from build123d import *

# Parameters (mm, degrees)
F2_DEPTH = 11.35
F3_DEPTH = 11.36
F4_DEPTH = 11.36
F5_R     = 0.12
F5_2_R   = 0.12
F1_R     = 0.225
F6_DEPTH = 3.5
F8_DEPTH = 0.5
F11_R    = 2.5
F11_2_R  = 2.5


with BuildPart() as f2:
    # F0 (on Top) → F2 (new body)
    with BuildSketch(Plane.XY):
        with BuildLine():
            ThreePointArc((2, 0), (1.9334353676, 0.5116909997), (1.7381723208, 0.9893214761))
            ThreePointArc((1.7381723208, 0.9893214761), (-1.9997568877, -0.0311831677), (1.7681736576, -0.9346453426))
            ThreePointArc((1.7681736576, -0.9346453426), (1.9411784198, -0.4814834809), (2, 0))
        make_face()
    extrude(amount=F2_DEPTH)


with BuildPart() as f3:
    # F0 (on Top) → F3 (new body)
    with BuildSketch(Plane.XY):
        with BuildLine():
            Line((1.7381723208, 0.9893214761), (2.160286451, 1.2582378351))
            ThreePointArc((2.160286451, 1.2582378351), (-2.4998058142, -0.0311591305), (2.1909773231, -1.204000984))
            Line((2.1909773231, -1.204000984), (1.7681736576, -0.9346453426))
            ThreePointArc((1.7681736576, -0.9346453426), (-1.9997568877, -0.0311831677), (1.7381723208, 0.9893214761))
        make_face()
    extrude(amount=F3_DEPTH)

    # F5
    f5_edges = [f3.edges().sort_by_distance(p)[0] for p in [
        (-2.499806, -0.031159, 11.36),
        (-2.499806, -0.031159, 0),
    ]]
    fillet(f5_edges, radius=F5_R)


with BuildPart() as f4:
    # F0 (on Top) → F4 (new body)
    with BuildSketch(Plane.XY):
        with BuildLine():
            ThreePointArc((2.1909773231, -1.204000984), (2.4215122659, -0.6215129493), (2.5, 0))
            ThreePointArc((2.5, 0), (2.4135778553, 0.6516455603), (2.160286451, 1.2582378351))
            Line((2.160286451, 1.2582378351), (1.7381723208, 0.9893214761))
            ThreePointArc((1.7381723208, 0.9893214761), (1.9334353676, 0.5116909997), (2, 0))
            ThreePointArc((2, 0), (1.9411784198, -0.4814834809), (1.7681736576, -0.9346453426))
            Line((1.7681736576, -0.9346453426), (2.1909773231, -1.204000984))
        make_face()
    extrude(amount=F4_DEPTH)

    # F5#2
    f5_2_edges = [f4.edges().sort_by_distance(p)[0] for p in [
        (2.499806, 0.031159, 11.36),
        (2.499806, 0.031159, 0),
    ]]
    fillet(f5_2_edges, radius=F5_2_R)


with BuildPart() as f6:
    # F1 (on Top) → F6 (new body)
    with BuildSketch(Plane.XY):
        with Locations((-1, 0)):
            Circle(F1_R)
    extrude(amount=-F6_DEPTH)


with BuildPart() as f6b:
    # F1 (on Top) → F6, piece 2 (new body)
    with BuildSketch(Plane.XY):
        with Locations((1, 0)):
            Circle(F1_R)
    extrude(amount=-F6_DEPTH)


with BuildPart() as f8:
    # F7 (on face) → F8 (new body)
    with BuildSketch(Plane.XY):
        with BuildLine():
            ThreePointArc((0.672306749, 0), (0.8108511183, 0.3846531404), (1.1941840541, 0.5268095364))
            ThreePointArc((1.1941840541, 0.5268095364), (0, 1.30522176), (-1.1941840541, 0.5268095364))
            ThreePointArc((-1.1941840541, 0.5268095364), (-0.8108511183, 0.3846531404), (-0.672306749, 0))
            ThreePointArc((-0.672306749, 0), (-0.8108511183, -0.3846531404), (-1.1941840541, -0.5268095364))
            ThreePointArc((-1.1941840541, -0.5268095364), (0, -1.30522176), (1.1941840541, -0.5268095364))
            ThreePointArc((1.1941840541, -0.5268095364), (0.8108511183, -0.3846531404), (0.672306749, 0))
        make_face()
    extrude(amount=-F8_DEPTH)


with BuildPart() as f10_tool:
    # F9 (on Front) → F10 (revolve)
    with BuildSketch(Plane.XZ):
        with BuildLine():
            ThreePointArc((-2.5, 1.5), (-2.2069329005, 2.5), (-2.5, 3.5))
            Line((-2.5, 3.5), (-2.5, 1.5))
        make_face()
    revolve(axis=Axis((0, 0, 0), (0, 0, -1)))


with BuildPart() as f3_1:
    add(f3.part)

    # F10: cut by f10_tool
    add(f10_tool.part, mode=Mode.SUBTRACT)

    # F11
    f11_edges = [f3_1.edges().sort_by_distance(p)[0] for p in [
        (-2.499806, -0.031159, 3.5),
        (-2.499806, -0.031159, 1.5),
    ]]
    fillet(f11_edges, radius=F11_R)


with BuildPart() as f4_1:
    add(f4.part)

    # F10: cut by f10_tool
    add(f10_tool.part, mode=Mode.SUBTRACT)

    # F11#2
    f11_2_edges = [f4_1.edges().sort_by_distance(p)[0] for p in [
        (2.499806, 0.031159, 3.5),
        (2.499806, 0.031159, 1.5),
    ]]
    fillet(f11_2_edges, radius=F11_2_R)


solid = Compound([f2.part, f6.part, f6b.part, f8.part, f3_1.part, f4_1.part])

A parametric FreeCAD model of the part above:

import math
import FreeCAD as App
import Part
import Sketcher
from FreeCAD import Vector
Q = App.Units.Quantity


def edges_at(feature, points):
    """Names of the edges that pass closest to the given points."""
    edges = feature.Shape.Edges
    near = lambda p: min(range(len(edges)), key=lambda i: edges[i].distToShape(Part.Vertex(*p))[0])
    return sorted({f"Edge{near(p) + 1}" for p in points})

doc = App.newDocument("Part")
body = doc.addObject("PartDesign::Body", "Body")

sketch1 = body.newObject("Sketcher::SketchObject", "Sketch")
sketch1.AttachmentSupport = (doc.getObject("XY_Plane"), [""])
sketch1.MapMode = "FlatFace"
sketch1.addGeometry(Part.ArcOfCircle(Part.Circle(Vector(0, 0, 0), Vector(0, 0, 1), 2), math.radians(0), math.radians(30)), False)
sketch1.addGeometry(Part.ArcOfCircle(Part.Circle(Vector(0, 0, 0), Vector(0, 0, 1), 2), math.radians(30), math.radians(332)), False)
sketch1.addGeometry(Part.ArcOfCircle(Part.Circle(Vector(0, 0, 0), Vector(0, 0, 1), 2), math.radians(-28), math.radians(0)), False)
sketch1.addConstraint(Sketcher.Constraint("Tangent", 0, 2, 1, 1))
sketch1.addConstraint(Sketcher.Constraint("Tangent", 1, 2, 2, 1))
sketch1.addConstraint(Sketcher.Constraint("Tangent", 2, 2, 0, 1))
sketch1.addConstraint(Sketcher.Constraint("Coincident", 0, 3, -1, 1))
sketch1.addConstraint(Sketcher.Constraint("PointOnObject", 2, 2, -1))
sketch1.addConstraint(Sketcher.Constraint("Radius", 0, Q("2 mm")))
sketch1.addConstraint(Sketcher.Constraint("DistanceX", 0, 2, 1, 2, Q("0.030001 mm")))
sketch1.addConstraint(Sketcher.Constraint("DistanceY", -1, 1, 0, 2, Q("0.989321 mm")))
pad1 = body.newObject("PartDesign::Pad", "Pad")
pad1.Profile = sketch1
pad1.Length = 11.35
body2 = doc.addObject("PartDesign::Body", "Body001")

sketch2 = body2.newObject("Sketcher::SketchObject", "Sketch001")
sketch2.AttachmentSupport = (doc.getObject("XY_Plane001"), [""])
sketch2.MapMode = "FlatFace"
sketch2.addGeometry(Part.LineSegment(Vector(1.7, 1, 0), Vector(2.2, 1.3, 0)), False)
sketch2.addGeometry(Part.ArcOfCircle(Part.Circle(Vector(0, 0, 0), Vector(0, 0, 1), 2.5), math.radians(30), math.radians(331)), False)
sketch2.addGeometry(Part.LineSegment(Vector(2.2, -1.2, 0), Vector(1.8, -0.9, 0)), False)
sketch2.addGeometry(Part.ArcOfCircle(Part.Circle(Vector(0, 0, 0), Vector(0, 0, 1), 2), math.radians(30), math.radians(332)), False)
sketch2.addConstraint(Sketcher.Constraint("Coincident", 0, 2, 1, 1))
sketch2.addConstraint(Sketcher.Constraint("Coincident", 1, 2, 2, 1))
sketch2.addConstraint(Sketcher.Constraint("Coincident", 2, 2, 3, 2))
sketch2.addConstraint(Sketcher.Constraint("Coincident", 3, 1, 0, 1))
sketch2.addConstraint(Sketcher.Constraint("Coincident", 1, 3, -1, 1))
sketch2.addConstraint(Sketcher.Constraint("Coincident", 3, 3, -1, 1))
sketch2.addConstraint(Sketcher.Constraint("Radius", 3, Q("2 mm")))
sketch2.addConstraint(Sketcher.Constraint("Radius", 1, Q("2.5 mm")))
sketch2.addConstraint(Sketcher.Constraint("Angle", 0, Q("32.5 deg")))
sketch2.addConstraint(Sketcher.Constraint("Angle", 2, Q("147.5 deg")))
sketch2.addConstraint(Sketcher.Constraint("DistanceX", 3, 1, 2, 2, Q("0.030001 mm")))
sketch2.addConstraint(Sketcher.Constraint("DistanceY", 1, 2, -1, 1, Q("1.204001 mm")))
pad2 = body2.newObject("PartDesign::Pad", "Pad001")
pad2.Profile = sketch2
pad2.Length = 11.36
doc.recompute()

fillet = body2.newObject("PartDesign::Fillet", "Fillet")
fillet.Base = (pad2, edges_at(pad2, [(-2.5, -0.031, 11.36), (-2.5, -0.031, 0)]))
fillet.Radius = 0.12
body3 = doc.addObject("PartDesign::Body", "Body002")

sketch3 = body3.newObject("Sketcher::SketchObject", "Sketch002")
sketch3.AttachmentSupport = (doc.getObject("XY_Plane002"), [""])
sketch3.MapMode = "FlatFace"
sketch3.addGeometry(Part.ArcOfCircle(Part.Circle(Vector(0, 0, 0), Vector(0, 0, 1), 2.5), math.radians(-29), math.radians(0)), False)
sketch3.addGeometry(Part.ArcOfCircle(Part.Circle(Vector(0, 0, 0), Vector(0, 0, 1), 2.5), math.radians(0), math.radians(30)), False)
sketch3.addGeometry(Part.LineSegment(Vector(2.2, 1.3, 0), Vector(1.7, 1, 0)), False)
sketch3.addGeometry(Part.ArcOfCircle(Part.Circle(Vector(0, 0, 0), Vector(0, 0, 1), 2), math.radians(0), math.radians(30)), False)
sketch3.addGeometry(Part.ArcOfCircle(Part.Circle(Vector(0, 0, 0), Vector(0, 0, 1), 2), math.radians(-28), math.radians(0)), False)
sketch3.addGeometry(Part.LineSegment(Vector(1.8, -0.9, 0), Vector(2.2, -1.2, 0)), False)
sketch3.addConstraint(Sketcher.Constraint("Tangent", 0, 2, 1, 1))
sketch3.addConstraint(Sketcher.Constraint("Coincident", 1, 2, 2, 1))
sketch3.addConstraint(Sketcher.Constraint("Coincident", 2, 2, 3, 2))
sketch3.addConstraint(Sketcher.Constraint("Tangent", 3, 1, 4, 2))
sketch3.addConstraint(Sketcher.Constraint("Coincident", 4, 1, 5, 1))
sketch3.addConstraint(Sketcher.Constraint("Coincident", 5, 2, 0, 1))
sketch3.addConstraint(Sketcher.Constraint("Coincident", 0, 3, -1, 1))
sketch3.addConstraint(Sketcher.Constraint("Coincident", 3, 3, -1, 1))
sketch3.addConstraint(Sketcher.Constraint("Equal", 0, 1))
sketch3.addConstraint(Sketcher.Constraint("Equal", 3, 4))
sketch3.addConstraint(Sketcher.Constraint("PointOnObject", 0, 2, -1))
sketch3.addConstraint(Sketcher.Constraint("PointOnObject", 3, 1, -1))
sketch3.addConstraint(Sketcher.Constraint("Radius", 3, Q("2 mm")))
sketch3.addConstraint(Sketcher.Constraint("Radius", 0, Q("2.5 mm")))
sketch3.addConstraint(Sketcher.Constraint("Angle", 2, Q("-147.5 deg")))
sketch3.addConstraint(Sketcher.Constraint("Angle", 5, Q("-32.5 deg")))
sketch3.addConstraint(Sketcher.Constraint("DistanceX", 2, 2, 4, 1, Q("0.030001 mm")))
sketch3.addConstraint(Sketcher.Constraint("DistanceY", 5, 2, -1, 1, Q("1.204001 mm")))
pad3 = body3.newObject("PartDesign::Pad", "Pad002")
pad3.Profile = sketch3
pad3.Length = 11.36
doc.recompute()

fillet2 = body3.newObject("PartDesign::Fillet", "Fillet001")
fillet2.Base = (pad3, edges_at(pad3, [(2.414, 0.652, 11.36), (2.414, 0.652, 0)]))
fillet2.Radius = 0.12
body4 = doc.addObject("PartDesign::Body", "Body003")

sketch4 = body4.newObject("Sketcher::SketchObject", "Sketch003")
sketch4.AttachmentSupport = (doc.getObject("XY_Plane003"), [""])
sketch4.MapMode = "FlatFace"
sketch4.addGeometry(Part.Circle(Vector(-1, 0, 0), Vector(0, 0, 1), 0.23), False)
sketch4.addConstraint(Sketcher.Constraint("PointOnObject", 0, 3, -1))
sketch4.addConstraint(Sketcher.Constraint("Diameter", 0, Q("0.45 mm")))
sketch4.addConstraint(Sketcher.Constraint("DistanceX", 0, 3, -1, 1, Q("1 mm")))
pad4 = body4.newObject("PartDesign::Pad", "Pad003")
pad4.Profile = sketch4
pad4.Length = 3.5
pad4.Reversed = True
body5 = doc.addObject("PartDesign::Body", "Body004")

sketch5 = body5.newObject("Sketcher::SketchObject", "Sketch004")
sketch5.AttachmentSupport = (doc.getObject("XY_Plane004"), [""])
sketch5.MapMode = "FlatFace"
sketch5.addGeometry(Part.Circle(Vector(1, 0, 0), Vector(0, 0, 1), 0.23), False)
sketch5.addConstraint(Sketcher.Constraint("PointOnObject", 0, 3, -1))
sketch5.addConstraint(Sketcher.Constraint("Diameter", 0, Q("0.45 mm")))
sketch5.addConstraint(Sketcher.Constraint("DistanceX", -1, 1, 0, 3, Q("1 mm")))
pad5 = body5.newObject("PartDesign::Pad", "Pad004")
pad5.Profile = sketch5
pad5.Length = 3.5
pad5.Reversed = True
body6 = doc.addObject("PartDesign::Body", "Body005")

sketch6 = body6.newObject("Sketcher::SketchObject", "Sketch005")
sketch6.AttachmentSupport = (doc.getObject("XY_Plane005"), [""])
sketch6.MapMode = "FlatFace"
sketch6.addGeometry(Part.ArcOfCircle(Part.Circle(Vector(1.16, 0.04, 0), Vector(0, 0, 1), 0.49), math.radians(85), math.radians(185)), False)
sketch6.addGeometry(Part.ArcOfCircle(Part.Circle(Vector(0, 0, 0), Vector(0, 0, 1), 1.31), math.radians(24), math.radians(156)), False)
sketch6.addGeometry(Part.ArcOfCircle(Part.Circle(Vector(-1.16, 0.04, 0), Vector(0, 0, 1), 0.49), math.radians(-5), math.radians(95)), False)
sketch6.addGeometry(Part.ArcOfCircle(Part.Circle(Vector(-1.16, -0.04, 0), Vector(0, 0, 1), 0.49), math.radians(-95), math.radians(5)), False)
sketch6.addGeometry(Part.ArcOfCircle(Part.Circle(Vector(0, 0, 0), Vector(0, 0, 1), 1.31), math.radians(-156), math.radians(-24)), False)
sketch6.addGeometry(Part.ArcOfCircle(Part.Circle(Vector(1.16, -0.04, 0), Vector(0, 0, 1), 0.49), math.radians(175), math.radians(275)), False)
sketch6.addConstraint(Sketcher.Constraint("Coincident", 0, 1, 1, 1))
sketch6.addConstraint(Sketcher.Constraint("Coincident", 1, 2, 2, 2))
sketch6.addConstraint(Sketcher.Constraint("Coincident", 2, 1, 3, 2))
sketch6.addConstraint(Sketcher.Constraint("Coincident", 3, 1, 4, 1))
sketch6.addConstraint(Sketcher.Constraint("Coincident", 4, 2, 5, 2))
sketch6.addConstraint(Sketcher.Constraint("Coincident", 5, 1, 0, 2))
sketch6.addConstraint(Sketcher.Constraint("Coincident", 1, 3, -1, 1))
sketch6.addConstraint(Sketcher.Constraint("Coincident", 4, 3, -1, 1))
sketch6.addConstraint(Sketcher.Constraint("Equal", 0, 2))
sketch6.addConstraint(Sketcher.Constraint("Equal", 2, 3))
sketch6.addConstraint(Sketcher.Constraint("Equal", 1, 4))
sketch6.addConstraint(Sketcher.Constraint("Equal", 3, 5))
sketch6.addConstraint(Sketcher.Constraint("Symmetric", 0, 3, 3, 3, -1, 1))
sketch6.addConstraint(Sketcher.Constraint("Symmetric", 2, 3, 5, 3, -1, 1))
sketch6.addConstraint(Sketcher.Constraint("Symmetric", 0, 3, 2, 3, -2))
sketch6.addConstraint(Sketcher.Constraint("Radius", 0, Q("0.48511 mm")))
sketch6.addConstraint(Sketcher.Constraint("Radius", 1, Q("1.305222 mm")))
sketch6.addConstraint(Sketcher.Constraint("DistanceX", 0, 3, 0, 1, Q("0.038699 mm")))
sketch6.addConstraint(Sketcher.Constraint("DistanceY", -1, 1, 0, 1, Q("0.52681 mm")))
pad6 = body6.newObject("PartDesign::Pad", "Pad005")
pad6.Profile = sketch6
pad6.Length = 0.5
pad6.Reversed = True
body7 = doc.addObject("PartDesign::Body", "Body006")

sketch7 = body7.newObject("Sketcher::SketchObject", "Sketch006")
sketch7.AttachmentSupport = (doc.getObject("XZ_Plane006"), [""])
sketch7.MapMode = "FlatFace"
sketch7.addGeometry(Part.ArcOfCircle(Part.Circle(Vector(-4.1, 2.5, 0), Vector(0, 0, 1), 1.9), math.radians(-33), math.radians(33)), False)
sketch7.addGeometry(Part.LineSegment(Vector(-2.5, 3.5, 0), Vector(-2.5, 1.5, 0)), False)
sketch7.addConstraint(Sketcher.Constraint("Coincident", 0, 1, 1, 2))
sketch7.addConstraint(Sketcher.Constraint("Coincident", 1, 1, 0, 2))
sketch7.addConstraint(Sketcher.Constraint("Vertical", 1))
sketch7.addConstraint(Sketcher.Constraint("DistanceY", 1, 2, 1, 1, Q("2 mm")))
sketch7.addConstraint(Sketcher.Constraint("DistanceY", -1, 1, 0, 3, Q("2.5 mm")))
sketch7.addConstraint(Sketcher.Constraint("DistanceX", 0, 1, -1, 1, Q("2.5 mm")))
sketch7.addConstraint(Sketcher.Constraint("Radius", 0, Q("1.852627 mm")))
revolution = body7.newObject("PartDesign::Revolution", "Revolution")
revolution.Profile = sketch7
revolution.ReferenceAxis = (sketch7, ["V_Axis"])
revolution.Angle = 360
doc.recompute()

body8 = doc.addObject("PartDesign::Body", "Body007")
body8.BaseFeature = body7
boolean = body2.newObject("PartDesign::Boolean", "Boolean")
boolean.Type = "Cut"
boolean.addObjects([body8])
doc.recompute()

fillet3 = body2.newObject("PartDesign::Fillet", "Fillet002")
fillet3.Base = (boolean, edges_at(boolean, [(-2.5, -0.031, 3.5), (-2.5, -0.031, 1.5)]))
fillet3.Radius = 2.5
doc.recompute()

boolean2 = body3.newObject("PartDesign::Boolean", "Boolean001")
boolean2.Type = "Cut"
boolean2.addObjects([body7])
doc.recompute()

fillet4 = body3.newObject("PartDesign::Fillet", "Fillet003")
fillet4.Base = (boolean2, edges_at(boolean2, [(2.414, 0.652, 3.5), (2.414, 0.652, 1.5)]))
fillet4.Radius = 2.5

doc.recompute()
